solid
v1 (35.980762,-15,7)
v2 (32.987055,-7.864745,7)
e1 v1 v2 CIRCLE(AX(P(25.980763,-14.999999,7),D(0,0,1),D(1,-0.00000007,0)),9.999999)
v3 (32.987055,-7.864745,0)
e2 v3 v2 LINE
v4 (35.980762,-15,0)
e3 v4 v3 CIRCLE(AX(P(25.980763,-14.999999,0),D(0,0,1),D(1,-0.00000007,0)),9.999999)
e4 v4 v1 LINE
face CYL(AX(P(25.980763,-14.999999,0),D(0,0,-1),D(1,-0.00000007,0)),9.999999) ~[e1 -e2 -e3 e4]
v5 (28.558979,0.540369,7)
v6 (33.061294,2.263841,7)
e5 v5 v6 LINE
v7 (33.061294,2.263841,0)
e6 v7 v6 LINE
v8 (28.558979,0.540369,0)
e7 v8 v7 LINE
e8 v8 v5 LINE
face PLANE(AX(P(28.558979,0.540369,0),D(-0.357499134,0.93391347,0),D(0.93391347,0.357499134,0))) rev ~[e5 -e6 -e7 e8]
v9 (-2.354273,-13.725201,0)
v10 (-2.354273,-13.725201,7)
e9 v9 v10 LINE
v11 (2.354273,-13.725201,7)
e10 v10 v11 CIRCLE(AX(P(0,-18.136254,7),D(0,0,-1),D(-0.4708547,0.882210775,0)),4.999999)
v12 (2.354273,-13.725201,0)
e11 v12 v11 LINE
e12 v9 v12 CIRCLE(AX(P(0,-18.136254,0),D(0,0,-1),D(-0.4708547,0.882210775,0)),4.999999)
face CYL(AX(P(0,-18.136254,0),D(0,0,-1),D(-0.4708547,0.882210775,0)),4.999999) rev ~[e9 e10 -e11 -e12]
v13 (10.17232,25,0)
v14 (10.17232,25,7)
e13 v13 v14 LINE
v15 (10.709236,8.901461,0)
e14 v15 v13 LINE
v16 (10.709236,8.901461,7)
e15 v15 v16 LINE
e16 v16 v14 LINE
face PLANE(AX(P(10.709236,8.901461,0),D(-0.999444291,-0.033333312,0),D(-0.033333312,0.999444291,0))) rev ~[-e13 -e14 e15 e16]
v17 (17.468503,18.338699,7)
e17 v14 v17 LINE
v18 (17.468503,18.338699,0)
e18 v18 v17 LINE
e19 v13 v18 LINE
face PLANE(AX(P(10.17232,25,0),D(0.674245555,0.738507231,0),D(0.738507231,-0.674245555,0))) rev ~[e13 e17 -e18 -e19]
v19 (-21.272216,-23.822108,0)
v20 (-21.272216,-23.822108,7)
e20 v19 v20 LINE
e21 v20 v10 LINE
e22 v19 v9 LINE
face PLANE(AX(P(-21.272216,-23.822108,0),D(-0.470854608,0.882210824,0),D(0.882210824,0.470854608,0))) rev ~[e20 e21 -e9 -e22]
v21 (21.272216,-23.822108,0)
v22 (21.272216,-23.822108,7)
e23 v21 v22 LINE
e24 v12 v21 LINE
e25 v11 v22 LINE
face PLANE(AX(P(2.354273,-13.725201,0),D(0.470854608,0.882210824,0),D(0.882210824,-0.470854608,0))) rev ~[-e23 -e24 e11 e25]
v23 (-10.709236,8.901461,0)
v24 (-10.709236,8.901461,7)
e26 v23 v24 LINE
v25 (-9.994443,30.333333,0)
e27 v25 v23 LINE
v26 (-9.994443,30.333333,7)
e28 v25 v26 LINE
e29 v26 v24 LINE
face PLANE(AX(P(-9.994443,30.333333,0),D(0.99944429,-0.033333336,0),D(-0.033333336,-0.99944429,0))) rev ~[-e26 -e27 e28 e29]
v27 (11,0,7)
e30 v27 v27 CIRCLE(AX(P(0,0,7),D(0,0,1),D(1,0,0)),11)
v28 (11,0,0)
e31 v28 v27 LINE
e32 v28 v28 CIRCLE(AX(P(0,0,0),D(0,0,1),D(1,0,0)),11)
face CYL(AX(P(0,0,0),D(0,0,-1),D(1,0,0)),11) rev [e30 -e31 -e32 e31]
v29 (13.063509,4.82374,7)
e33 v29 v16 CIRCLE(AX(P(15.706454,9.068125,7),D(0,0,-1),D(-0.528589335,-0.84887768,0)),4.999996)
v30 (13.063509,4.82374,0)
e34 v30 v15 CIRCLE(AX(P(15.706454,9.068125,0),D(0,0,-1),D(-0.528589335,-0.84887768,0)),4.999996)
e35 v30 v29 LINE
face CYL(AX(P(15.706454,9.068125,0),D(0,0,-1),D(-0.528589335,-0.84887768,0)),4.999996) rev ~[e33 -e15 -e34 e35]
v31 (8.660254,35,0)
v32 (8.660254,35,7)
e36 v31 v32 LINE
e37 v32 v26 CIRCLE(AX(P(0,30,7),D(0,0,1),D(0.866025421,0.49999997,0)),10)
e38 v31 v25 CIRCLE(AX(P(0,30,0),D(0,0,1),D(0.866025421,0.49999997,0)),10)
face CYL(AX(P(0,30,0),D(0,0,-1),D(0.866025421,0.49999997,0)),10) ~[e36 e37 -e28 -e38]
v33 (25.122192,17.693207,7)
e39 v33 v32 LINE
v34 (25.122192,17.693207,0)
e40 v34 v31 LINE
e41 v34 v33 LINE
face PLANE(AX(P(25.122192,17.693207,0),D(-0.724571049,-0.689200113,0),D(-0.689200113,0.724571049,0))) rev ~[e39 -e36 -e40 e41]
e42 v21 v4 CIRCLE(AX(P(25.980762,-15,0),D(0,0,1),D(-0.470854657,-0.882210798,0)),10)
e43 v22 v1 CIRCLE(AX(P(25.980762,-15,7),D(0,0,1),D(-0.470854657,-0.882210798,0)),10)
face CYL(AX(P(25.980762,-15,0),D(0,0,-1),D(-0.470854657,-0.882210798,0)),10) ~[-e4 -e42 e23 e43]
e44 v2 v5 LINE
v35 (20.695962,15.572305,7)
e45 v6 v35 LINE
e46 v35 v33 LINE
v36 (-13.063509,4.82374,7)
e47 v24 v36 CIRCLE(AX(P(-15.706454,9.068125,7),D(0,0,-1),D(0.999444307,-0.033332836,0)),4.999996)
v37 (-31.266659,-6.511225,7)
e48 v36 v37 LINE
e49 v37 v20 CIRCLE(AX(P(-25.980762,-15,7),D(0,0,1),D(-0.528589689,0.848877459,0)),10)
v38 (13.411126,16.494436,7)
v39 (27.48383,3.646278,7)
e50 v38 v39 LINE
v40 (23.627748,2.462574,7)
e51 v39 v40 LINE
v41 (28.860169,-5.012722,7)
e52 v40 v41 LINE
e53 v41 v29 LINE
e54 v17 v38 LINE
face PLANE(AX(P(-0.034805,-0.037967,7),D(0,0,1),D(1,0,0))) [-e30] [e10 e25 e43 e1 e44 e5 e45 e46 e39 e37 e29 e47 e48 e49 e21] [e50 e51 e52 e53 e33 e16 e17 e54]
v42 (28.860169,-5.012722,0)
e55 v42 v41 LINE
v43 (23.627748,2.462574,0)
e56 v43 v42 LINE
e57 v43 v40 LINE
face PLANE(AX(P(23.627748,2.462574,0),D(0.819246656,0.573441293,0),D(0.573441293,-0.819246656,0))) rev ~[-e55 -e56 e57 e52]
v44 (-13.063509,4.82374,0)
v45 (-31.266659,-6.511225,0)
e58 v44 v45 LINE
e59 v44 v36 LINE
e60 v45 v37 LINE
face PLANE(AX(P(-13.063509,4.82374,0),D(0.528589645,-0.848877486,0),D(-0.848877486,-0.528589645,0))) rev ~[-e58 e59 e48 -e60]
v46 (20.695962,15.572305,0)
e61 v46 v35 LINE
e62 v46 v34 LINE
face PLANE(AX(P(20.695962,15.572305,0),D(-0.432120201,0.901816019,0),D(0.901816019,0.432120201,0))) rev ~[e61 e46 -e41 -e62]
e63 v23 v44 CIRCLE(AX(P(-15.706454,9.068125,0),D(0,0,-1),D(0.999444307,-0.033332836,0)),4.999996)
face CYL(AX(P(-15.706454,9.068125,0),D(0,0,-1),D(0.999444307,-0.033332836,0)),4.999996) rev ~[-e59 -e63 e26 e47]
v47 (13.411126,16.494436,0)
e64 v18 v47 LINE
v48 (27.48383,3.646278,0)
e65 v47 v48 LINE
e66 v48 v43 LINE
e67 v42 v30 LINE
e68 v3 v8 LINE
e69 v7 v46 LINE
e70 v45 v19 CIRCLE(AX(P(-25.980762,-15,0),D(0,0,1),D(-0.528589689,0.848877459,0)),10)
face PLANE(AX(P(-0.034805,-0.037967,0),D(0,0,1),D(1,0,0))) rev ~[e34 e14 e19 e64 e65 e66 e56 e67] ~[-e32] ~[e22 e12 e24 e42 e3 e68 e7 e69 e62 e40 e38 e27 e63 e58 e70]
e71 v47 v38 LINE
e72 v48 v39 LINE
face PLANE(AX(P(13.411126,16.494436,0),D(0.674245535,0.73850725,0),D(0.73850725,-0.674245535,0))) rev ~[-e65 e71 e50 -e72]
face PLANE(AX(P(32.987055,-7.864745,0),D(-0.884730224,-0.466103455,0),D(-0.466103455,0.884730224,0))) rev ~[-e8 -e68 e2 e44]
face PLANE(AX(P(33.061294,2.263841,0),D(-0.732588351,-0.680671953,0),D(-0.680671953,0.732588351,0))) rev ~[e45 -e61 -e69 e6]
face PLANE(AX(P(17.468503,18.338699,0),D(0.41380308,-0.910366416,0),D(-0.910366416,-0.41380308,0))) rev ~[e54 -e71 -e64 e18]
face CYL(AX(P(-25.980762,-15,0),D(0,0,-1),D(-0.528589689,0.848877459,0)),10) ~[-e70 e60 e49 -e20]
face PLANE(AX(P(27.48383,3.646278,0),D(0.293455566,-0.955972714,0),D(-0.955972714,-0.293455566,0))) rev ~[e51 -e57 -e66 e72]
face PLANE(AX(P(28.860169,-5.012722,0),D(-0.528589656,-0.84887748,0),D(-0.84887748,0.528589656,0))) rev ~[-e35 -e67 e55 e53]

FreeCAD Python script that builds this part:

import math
import FreeCAD as App
import Part
import Sketcher
Q = App.Units.Quantity

doc = App.newDocument("Part")
body = doc.addObject("PartDesign::Body", "Body")

# Sketch on XY plane
sketch1 = doc.addObject("Sketcher::SketchObject", "Sketch")
body.addObject(sketch1)
sketch1.AttachmentSupport = (doc.XY_Plane, [""])
sketch1.MapMode = "FlatFace"
sketch1.addGeometry([
    Part.ArcOfCircle(Part.Circle(App.Vector(0, 30, 0), App.Vector(0, 0, 1), 10), math.radians(30), math.radians(178)),  # 0
    Part.LineSegment(App.Vector(-10, 30.3, 0), App.Vector(-10.7, 8.9, 0)),  # 1
    Part.ArcOfCircle(Part.Circle(App.Vector(-15.7, 9.1, 0), App.Vector(0, 0, 1), 5), math.radians(-58), math.radians(-2)),  # 2
    Part.LineSegment(App.Vector(-13.1, 4.8, 0), App.Vector(-31.3, -6.5, 0)),  # 3
    Part.ArcOfCircle(Part.Circle(App.Vector(-26, -15, 0), App.Vector(0, 0, 1), 10), math.radians(122), math.radians(298)),  # 4
    Part.LineSegment(App.Vector(-21.3, -23.8, 0), App.Vector(-2.4, -13.7, 0)),  # 5
    Part.ArcOfCircle(Part.Circle(App.Vector(0, -18.1, 0), App.Vector(0, 0, 1), 5), math.radians(62), math.radians(118)),  # 6
    Part.LineSegment(App.Vector(2.4, -13.7, 0), App.Vector(21.3, -23.8, 0)),  # 7
    Part.ArcOfCircle(Part.Circle(App.Vector(26, -15, 0), App.Vector(0, 0, 1), 10), math.radians(-118), math.radians(0)),  # 8
    Part.ArcOfCircle(Part.Circle(App.Vector(26, -15, 0), App.Vector(0, 0, 1), 10), math.radians(0), math.radians(46)),  # 9
    Part.LineSegment(App.Vector(33, -7.9, 0), App.Vector(28.6, 0.5, 0)),  # 10
    Part.LineSegment(App.Vector(28.6, 0.5, 0), App.Vector(33.1, 2.3, 0)),  # 11
    Part.LineSegment(App.Vector(33.1, 2.3, 0), App.Vector(20.7, 15.6, 0)),  # 12
    Part.LineSegment(App.Vector(20.7, 15.6, 0), App.Vector(25.1, 17.7, 0)),  # 13
    Part.LineSegment(App.Vector(25.1, 17.7, 0), App.Vector(8.7, 35, 0)),  # 14
    Part.LineSegment(App.Vector(28.9, -5, 0), App.Vector(13.1, 4.8, 0)),  # 15
    Part.ArcOfCircle(Part.Circle(App.Vector(15.7, 9.1, 0), App.Vector(0, 0, 1), 5), math.radians(-178), math.radians(-122)),  # 16
    Part.LineSegment(App.Vector(10.7, 8.9, 0), App.Vector(10.2, 25, 0)),  # 17
    Part.LineSegment(App.Vector(10.2, 25, 0), App.Vector(17.5, 18.3, 0)),  # 18
    Part.LineSegment(App.Vector(17.5, 18.3, 0), App.Vector(13.4, 16.5, 0)),  # 19
    Part.LineSegment(App.Vector(13.4, 16.5, 0), App.Vector(27.5, 3.6, 0)),  # 20
    Part.LineSegment(App.Vector(27.5, 3.6, 0), App.Vector(23.6, 2.5, 0)),  # 21
    Part.LineSegment(App.Vector(23.6, 2.5, 0), App.Vector(28.9, -5, 0)),  # 22
    Part.Circle(App.Vector(0, 0, 0), App.Vector(0, 0, 1), 11),  # 23
], False)
sketch1.addConstraint([
    Sketcher.Constraint("Tangent", 0, 2, 1, 1),
    Sketcher.Constraint("Tangent", 1, 2, 2, 2),
    Sketcher.Constraint("Tangent", 2, 1, 3, 1),
    Sketcher.Constraint("Tangent", 3, 2, 4, 1),
    Sketcher.Constraint("Tangent", 4, 2, 5, 1),
    Sketcher.Constraint("Tangent", 5, 2, 6, 2),
    Sketcher.Constraint("Tangent", 6, 1, 7, 1),
    Sketcher.Constraint("Tangent", 7, 2, 8, 1),
    Sketcher.Constraint("Tangent", 8, 2, 9, 1),
    Sketcher.Constraint("Coincident", 9, 2, 10, 1),
    Sketcher.Constraint("Coincident", 10, 2, 11, 1),
    Sketcher.Constraint("Coincident", 11, 2, 12, 1),
    Sketcher.Constraint("Coincident", 12, 2, 13, 1),
    Sketcher.Constraint("Coincident", 13, 2, 14, 1),
    Sketcher.Constraint("Coincident", 14, 2, 0, 1),
    Sketcher.Constraint("Tangent", 15, 2, 16, 2),
    Sketcher.Constraint("Tangent", 16, 1, 17, 1),
    Sketcher.Constraint("Coincident", 17, 2, 18, 1),
    Sketcher.Constraint("Coincident", 18, 2, 19, 1),
    Sketcher.Constraint("Coincident", 19, 2, 20, 1),
    Sketcher.Constraint("Coincident", 20, 2, 21, 1),
    Sketcher.Constraint("Coincident", 21, 2, 22, 1),
    Sketcher.Constraint("Coincident", 22, 2, 15, 1),
    Sketcher.Constraint("Coincident", 23, 3, -1, 1),
    Sketcher.Constraint("Equal", 0, 4),
    Sketcher.Constraint("Equal", 4, 8),
    Sketcher.Constraint("Equal", 8, 9),
    Sketcher.Constraint("Equal", 2, 16),
    Sketcher.Constraint("Symmetric", 4, 3, 8, 3, -2),
    Sketcher.Constraint("Symmetric", 2, 3, 16, 3, -2),
    Sketcher.Constraint("PointOnObject", 0, 3, -2),
    Sketcher.Constraint("PointOnObject", 6, 3, -2),
    Sketcher.Constraint("Parallel", 18, 20),
    Sketcher.Constraint("Horizontal", 9, 3, 8, 2),
    Sketcher.Constraint("Horizontal", 2, 1, 15, 2),
    Sketcher.Constraint("Horizontal", 1, 2, 16, 1),
    Sketcher.Constraint("Equal", 1, 3),
    Sketcher.Constraint("Equal", 3, 5),
    Sketcher.Constraint("Diameter", 23, Q("22 mm")),
    Sketcher.Constraint("Radius", 0, Q("10 mm")),
    Sketcher.Constraint("Radius", 6, Q("4.999999 mm")),
    Sketcher.Constraint("DistanceY", -1, 1, 0, 3, Q("30 mm")),
    Sketcher.Constraint("DistanceY", 4, 3, -1, 1, Q("15 mm")),
    Sketcher.Constraint("DistanceY", -1, 1, 14, 2, Q("35 mm")),
    Sketcher.Constraint("DistanceY", -1, 1, 17, 2, Q("25 mm")),
    Sketcher.Constraint("Radius", 2, Q("4.999996 mm")),
    Sketcher.Constraint("DistanceY", 22, 2, 20, 2, Q("8.659 mm")),
    Sketcher.Constraint("Distance", 10, Q("9.5002 mm")),
    Sketcher.Constraint("DistanceY", 5, 2, -1, 1, Q("13.725201 mm")),
    Sketcher.Constraint("DistanceY", -1, 1, 18, 2, Q("18.338699 mm")),
    Sketcher.Constraint("DistanceX", 16, 3, 9, 2, Q("17.280601 mm")),
    Sketcher.Constraint("DistanceX", 13, 2, 11, 2, Q("7.939102 mm")),
    Sketcher.Constraint("DistanceX", 14, 2, 16, 3, Q("7.0462 mm")),
    Sketcher.Constraint("Distance", 12, Q("18.16636 mm")),
    Sketcher.Constraint("Distance", 13, Q("4.90813 mm")),
    Sketcher.Constraint("Distance", 14, Q("23.885571 mm")),
    Sketcher.Constraint("Distance", 15, Q("18.608881 mm")),
    Sketcher.Constraint("Distance", 19, Q("4.456861 mm")),
    Sketcher.Constraint("DistanceX", -1, 1, 10, 2, Q("28.558979 mm")),
    Sketcher.Constraint("DistanceY", -1, 1, 11, 2, Q("2.263841 mm")),
    Sketcher.Constraint("DistanceX", -1, 1, 13, 2, Q("25.122192 mm")),
    Sketcher.Constraint("DistanceX", -1, 1, 20, 2, Q("27.48383 mm")),
    Sketcher.Constraint("DistanceX", -1, 1, 21, 2, Q("23.627748 mm")),
    Sketcher.Constraint("DistanceX", 18, 2, 12, 2, Q("3.227459 mm")),
    Sketcher.Constraint("DistanceY", 21, 2, 16, 3, Q("6.605551 mm")),
])
pad1 = doc.addObject("PartDesign::Pad", "Pad")
body.addObject(pad1)
pad1.Profile = sketch1
pad1.Length = 7

doc.recompute()
